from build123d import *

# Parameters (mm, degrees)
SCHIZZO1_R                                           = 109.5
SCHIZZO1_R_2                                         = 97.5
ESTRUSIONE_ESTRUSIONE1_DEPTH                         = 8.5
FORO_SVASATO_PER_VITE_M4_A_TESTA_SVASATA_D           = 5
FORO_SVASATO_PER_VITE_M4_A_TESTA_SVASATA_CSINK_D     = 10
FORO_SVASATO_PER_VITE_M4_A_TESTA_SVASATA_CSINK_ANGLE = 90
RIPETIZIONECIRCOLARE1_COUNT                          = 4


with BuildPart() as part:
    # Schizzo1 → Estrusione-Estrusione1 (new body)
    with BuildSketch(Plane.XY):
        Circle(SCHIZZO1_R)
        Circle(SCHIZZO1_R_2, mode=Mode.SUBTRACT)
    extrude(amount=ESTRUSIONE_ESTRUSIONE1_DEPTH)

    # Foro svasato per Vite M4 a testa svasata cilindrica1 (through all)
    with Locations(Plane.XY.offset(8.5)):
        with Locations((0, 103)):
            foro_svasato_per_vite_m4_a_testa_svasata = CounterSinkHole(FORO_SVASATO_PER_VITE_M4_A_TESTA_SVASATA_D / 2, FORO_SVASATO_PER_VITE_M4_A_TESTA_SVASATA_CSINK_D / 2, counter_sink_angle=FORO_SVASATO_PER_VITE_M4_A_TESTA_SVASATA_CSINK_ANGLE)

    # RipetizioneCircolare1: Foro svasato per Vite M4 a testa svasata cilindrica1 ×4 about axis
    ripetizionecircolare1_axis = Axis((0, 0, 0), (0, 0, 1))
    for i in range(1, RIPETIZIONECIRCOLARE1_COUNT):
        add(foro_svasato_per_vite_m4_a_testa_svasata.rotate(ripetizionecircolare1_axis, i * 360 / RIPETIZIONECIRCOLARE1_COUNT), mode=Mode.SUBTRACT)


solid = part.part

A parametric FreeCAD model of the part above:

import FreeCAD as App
import Part
import Sketcher

V = App.Vector
Q = App.Units.Quantity

doc = App.newDocument("Part")
params = doc.addObject("Spreadsheet::Sheet", "Params")
for row, (alias, value) in enumerate([
    ("sketch1_diameter", "219 mm"),
    ("sketch1_diameter2", "195 mm"),
    ("pad1_length", "8.5 mm"),
    ("sketch2_diameter", "5 mm"),
    ("hole_diameter", "5 mm"),
    ("hole_csink_diameter", "10 mm"),
], start=1):
    params.set(f"A{row}", alias)
    params.set(f"B{row}", "=" + value)
    params.setAlias(f"B{row}", alias)

body = doc.addObject("PartDesign::Body", "Body")

# Sketch on XY plane
sketch1 = doc.addObject("Sketcher::SketchObject", "Sketch")
body.addObject(sketch1)
sketch1.AttachmentSupport = (doc.XY_Plane, [""])
sketch1.MapMode = "FlatFace"
sketch1.addGeometry(Part.Circle(V(0, 0, 0), V(0, 0, 1), 109.5), False)
sketch1.addGeometry(Part.Circle(V(0, 0, 0), V(0, 0, 1), 97.5), False)
sketch1.addConstraint(Sketcher.Constraint("Coincident", 0, 3, -1, 1))
sketch1.addConstraint(Sketcher.Constraint("Coincident", 1, 3, -1, 1))
sketch1.addConstraint(Sketcher.Constraint("Diameter", 0, Q("219 mm")))
sketch1.addConstraint(Sketcher.Constraint("Diameter", 1, Q("195 mm")))
sketch1.setExpression("Constraints[2]", "Params.sketch1_diameter")
sketch1.setExpression("Constraints[3]", "Params.sketch1_diameter2")
pad1 = doc.addObject("PartDesign::Pad", "Pad")
body.addObject(pad1)
pad1.Profile = sketch1
pad1.setExpression("Length", "Params.pad1_length")

# Sketch on XY plane
sketch2 = doc.addObject("Sketcher::SketchObject", "Sketch001")
body.addObject(sketch2)
sketch2.AttachmentSupport = (doc.XY_Plane, [""])
sketch2.MapMode = "FlatFace"
sketch2.AttachmentOffset = App.Placement(V(0, 0, 8.5), App.Rotation())
sketch2.addGeometry(Part.Circle(V(0, 103, 0), V(0, 0, 1), 2.5), False)
sketch2.addConstraint(Sketcher.Constraint("PointOnObject", 0, 3, -2))
sketch2.addConstraint(Sketcher.Constraint("Diameter", 0, Q("5 mm")))
sketch2.addConstraint(Sketcher.Constraint("DistanceY", -1, 1, 0, 3, Q("103 mm")))
sketch2.setExpression("Constraints[1]", "Params.sketch2_diameter")
doc.recompute()
hole = doc.addObject("PartDesign::Hole", "Hole")
body.addObject(hole)
hole.Profile = sketch2
hole.ThreadType = "None"
hole.setExpression("Diameter", "Params.hole_diameter")
hole.DepthType = "ThroughAll"
hole.HoleCutType = "Countersink"
hole.setExpression("HoleCutDiameter", "Params.hole_csink_diameter")
hole.HoleCutCountersinkAngle = 90
doc.recompute()

polarpattern = doc.addObject("PartDesign::PolarPattern", "PolarPattern")
body.addObject(polarpattern)
polarpattern.Originals = [hole]
polarpattern.Axis = (doc.Z_Axis, [""])
polarpattern.Angle = 360
polarpattern.Occurrences = 4
body.Tip = polarpattern

doc.recompute()
